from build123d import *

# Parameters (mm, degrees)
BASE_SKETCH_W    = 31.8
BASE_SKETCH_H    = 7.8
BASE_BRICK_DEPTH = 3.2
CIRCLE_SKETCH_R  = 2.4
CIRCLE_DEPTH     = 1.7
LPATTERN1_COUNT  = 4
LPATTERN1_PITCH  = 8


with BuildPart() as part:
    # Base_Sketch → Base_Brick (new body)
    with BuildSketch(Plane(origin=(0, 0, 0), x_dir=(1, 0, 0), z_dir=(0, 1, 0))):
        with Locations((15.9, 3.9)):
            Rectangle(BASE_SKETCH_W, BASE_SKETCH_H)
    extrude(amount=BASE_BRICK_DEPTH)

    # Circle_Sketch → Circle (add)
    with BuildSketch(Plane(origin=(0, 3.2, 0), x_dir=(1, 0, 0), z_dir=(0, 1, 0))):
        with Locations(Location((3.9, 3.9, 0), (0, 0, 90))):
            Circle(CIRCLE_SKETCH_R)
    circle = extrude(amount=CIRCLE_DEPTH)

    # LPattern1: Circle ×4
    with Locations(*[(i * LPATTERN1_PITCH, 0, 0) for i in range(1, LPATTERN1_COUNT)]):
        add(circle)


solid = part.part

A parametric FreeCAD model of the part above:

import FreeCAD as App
import Part
import Sketcher
from FreeCAD import Vector
Q = App.Units.Quantity


def add_polygon(sketch, points):
    """Adds a closed chain of lines whose ends are joined by coincident constraints."""
    first, n = sketch.GeometryCount, len(points)
    for a, b in zip(points, points[1:] + points[:1]):
        sketch.addGeometry(Part.LineSegment(App.Vector(*a, 0), App.Vector(*b, 0)), False)
    for i in range(n):
        sketch.addConstraint(Sketcher.Constraint("Coincident", first + i, 2, first + (i + 1) % n, 1))

doc = App.newDocument("Part")
body = doc.addObject("PartDesign::Body", "Body")

# Sketch on XZ plane
sketch1 = body.newObject("Sketcher::SketchObject", "Sketch")
sketch1.AttachmentSupport = (doc.getObject("XZ_Plane"), [""])
sketch1.MapMode = "FlatFace"
add_polygon(sketch1, [(0, -7.8), (0, 0), (31.8, 0), (31.8, -7.8)])  # lines 0-3
sketch1.addConstraint(Sketcher.Constraint("Vertical", 0))
sketch1.addConstraint(Sketcher.Constraint("Horizontal", 1))
sketch1.addConstraint(Sketcher.Constraint("Vertical", 2))
sketch1.addConstraint(Sketcher.Constraint("Horizontal", 3))
sketch1.addConstraint(Sketcher.Constraint("Coincident", 0, 2, -1, 1))
sketch1.addConstraint(Sketcher.Constraint("DistanceX", 1, 1, 1, 2, Q("31.8 mm")))
sketch1.addConstraint(Sketcher.Constraint("DistanceY", 0, 1, 0, 2, Q("7.8 mm")))
pad1 = body.newObject("PartDesign::Pad", "Pad")
pad1.Profile = sketch1
pad1.Length = 3.2
pad1.Reversed = True

# Sketch on XZ plane
sketch2 = body.newObject("Sketcher::SketchObject", "Sketch001")
sketch2.AttachmentSupport = (doc.getObject("XZ_Plane"), [""])
sketch2.MapMode = "FlatFace"
sketch2.AttachmentOffset = App.Placement(Vector(0, 0, -3.2), App.Rotation())
sketch2.addGeometry(Part.Circle(Vector(3.9, -3.9, 0), Vector(0, 0, 1), 2.4), False)
sketch2.addConstraint(Sketcher.Constraint("Diameter", 0, Q("4.8 mm")))
sketch2.addConstraint(Sketcher.Constraint("DistanceX", -1, 1, 0, 3, Q("3.9 mm")))
sketch2.addConstraint(Sketcher.Constraint("DistanceY", 0, 3, -1, 1, Q("3.9 mm")))
pad2 = body.newObject("PartDesign::Pad", "Pad001")
pad2.Profile = sketch2
pad2.Length = 1.7
pad2.Reversed = True
doc.recompute()

linearpattern = body.newObject("PartDesign::LinearPattern", "LinearPattern")
linearpattern.Originals = [pad2]
linearpattern.Direction = (doc.getObject("X_Axis"), [""])
linearpattern.Mode = "offset"
linearpattern.Offset = 8
linearpattern.Occurrences = 4
body.Tip = linearpattern

doc.recompute()
